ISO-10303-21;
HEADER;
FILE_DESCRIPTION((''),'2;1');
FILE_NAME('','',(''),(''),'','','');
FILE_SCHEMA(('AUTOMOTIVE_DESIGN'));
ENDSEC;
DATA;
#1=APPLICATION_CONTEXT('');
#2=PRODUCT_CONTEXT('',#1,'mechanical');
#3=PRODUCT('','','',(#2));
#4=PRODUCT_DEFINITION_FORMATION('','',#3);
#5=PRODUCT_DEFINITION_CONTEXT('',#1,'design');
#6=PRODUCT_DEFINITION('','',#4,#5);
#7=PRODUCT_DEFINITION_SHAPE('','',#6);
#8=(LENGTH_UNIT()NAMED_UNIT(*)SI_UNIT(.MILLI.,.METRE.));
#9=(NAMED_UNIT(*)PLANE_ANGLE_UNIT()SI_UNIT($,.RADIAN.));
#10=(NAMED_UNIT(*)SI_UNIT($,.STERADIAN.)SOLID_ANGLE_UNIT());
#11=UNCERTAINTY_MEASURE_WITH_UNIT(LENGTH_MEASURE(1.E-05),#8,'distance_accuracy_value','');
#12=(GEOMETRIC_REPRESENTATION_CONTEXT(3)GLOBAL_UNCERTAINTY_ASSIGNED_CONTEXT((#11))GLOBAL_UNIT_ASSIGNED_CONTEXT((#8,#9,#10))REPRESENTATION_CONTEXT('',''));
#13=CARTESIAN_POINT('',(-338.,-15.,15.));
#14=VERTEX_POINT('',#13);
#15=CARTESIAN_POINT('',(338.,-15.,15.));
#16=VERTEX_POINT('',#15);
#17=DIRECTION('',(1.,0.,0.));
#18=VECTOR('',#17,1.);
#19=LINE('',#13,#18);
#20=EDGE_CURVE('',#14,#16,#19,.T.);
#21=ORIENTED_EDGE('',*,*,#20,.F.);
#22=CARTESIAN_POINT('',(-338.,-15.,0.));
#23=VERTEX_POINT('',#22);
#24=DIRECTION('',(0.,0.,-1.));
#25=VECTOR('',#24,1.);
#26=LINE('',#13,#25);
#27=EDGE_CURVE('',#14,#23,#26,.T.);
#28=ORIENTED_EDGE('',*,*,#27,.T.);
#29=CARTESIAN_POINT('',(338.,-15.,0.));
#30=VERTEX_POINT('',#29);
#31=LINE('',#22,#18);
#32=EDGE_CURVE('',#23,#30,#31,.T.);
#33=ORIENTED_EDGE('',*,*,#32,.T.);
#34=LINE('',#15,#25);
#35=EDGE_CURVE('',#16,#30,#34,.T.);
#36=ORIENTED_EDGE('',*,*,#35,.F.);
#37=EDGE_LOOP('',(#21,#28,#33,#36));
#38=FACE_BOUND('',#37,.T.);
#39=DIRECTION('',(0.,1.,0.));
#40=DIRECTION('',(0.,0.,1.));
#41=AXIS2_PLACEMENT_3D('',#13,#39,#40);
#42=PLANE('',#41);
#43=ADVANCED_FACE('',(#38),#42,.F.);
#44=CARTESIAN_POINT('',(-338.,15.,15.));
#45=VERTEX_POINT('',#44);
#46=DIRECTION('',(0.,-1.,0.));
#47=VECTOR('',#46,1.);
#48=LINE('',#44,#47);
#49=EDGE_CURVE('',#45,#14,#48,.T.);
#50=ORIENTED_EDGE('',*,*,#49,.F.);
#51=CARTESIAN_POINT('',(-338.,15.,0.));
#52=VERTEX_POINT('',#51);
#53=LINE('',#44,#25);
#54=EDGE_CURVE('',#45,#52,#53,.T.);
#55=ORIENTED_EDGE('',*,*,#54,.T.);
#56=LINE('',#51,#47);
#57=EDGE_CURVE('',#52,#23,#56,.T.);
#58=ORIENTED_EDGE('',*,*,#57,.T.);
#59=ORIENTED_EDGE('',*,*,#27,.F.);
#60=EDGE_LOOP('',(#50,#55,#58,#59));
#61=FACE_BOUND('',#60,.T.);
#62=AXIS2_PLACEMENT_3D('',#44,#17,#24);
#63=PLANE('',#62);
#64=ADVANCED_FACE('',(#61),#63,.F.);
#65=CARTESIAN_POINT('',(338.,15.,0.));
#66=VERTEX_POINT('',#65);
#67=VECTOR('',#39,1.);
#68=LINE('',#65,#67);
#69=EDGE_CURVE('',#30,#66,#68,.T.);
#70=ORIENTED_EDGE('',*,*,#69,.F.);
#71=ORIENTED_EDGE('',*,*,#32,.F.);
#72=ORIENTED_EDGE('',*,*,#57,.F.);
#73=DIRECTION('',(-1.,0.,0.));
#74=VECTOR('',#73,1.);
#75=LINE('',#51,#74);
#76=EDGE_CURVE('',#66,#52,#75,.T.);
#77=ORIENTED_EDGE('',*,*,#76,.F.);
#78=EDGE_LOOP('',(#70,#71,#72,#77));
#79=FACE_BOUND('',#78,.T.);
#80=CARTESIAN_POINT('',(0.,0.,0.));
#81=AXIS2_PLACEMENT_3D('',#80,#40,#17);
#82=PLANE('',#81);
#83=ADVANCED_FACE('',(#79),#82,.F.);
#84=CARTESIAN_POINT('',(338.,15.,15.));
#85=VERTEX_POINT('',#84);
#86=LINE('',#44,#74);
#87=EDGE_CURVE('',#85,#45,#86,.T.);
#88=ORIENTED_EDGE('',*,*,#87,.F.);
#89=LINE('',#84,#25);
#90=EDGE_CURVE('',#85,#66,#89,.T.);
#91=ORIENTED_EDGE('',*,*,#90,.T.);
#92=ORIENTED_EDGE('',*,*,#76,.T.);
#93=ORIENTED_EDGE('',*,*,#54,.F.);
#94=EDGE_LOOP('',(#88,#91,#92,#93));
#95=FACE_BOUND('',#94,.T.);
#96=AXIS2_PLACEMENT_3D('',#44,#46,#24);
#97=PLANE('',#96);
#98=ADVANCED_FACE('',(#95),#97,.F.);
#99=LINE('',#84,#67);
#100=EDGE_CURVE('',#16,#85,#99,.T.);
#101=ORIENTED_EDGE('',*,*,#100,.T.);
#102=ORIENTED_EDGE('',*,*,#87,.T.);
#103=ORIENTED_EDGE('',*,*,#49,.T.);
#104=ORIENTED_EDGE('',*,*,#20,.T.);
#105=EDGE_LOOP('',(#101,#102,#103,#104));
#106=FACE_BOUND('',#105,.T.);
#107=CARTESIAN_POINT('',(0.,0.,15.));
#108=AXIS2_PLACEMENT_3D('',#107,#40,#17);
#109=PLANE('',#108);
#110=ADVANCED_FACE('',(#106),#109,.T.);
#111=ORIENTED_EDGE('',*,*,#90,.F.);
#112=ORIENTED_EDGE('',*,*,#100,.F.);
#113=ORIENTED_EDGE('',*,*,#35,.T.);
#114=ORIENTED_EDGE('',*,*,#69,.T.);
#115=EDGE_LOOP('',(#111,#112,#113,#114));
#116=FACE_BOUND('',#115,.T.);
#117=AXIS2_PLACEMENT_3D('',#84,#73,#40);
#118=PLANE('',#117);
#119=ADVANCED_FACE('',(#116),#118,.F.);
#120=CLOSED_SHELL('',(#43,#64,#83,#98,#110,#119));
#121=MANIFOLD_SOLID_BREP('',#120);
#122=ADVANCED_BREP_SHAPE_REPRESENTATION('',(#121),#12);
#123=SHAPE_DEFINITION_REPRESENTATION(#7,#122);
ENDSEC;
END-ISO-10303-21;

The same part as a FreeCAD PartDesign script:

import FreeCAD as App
import Part
import Sketcher
Q = App.Units.Quantity

doc = App.newDocument("Part")
body = doc.addObject("PartDesign::Body", "Body")

# Sketch on XY plane
sketch1 = doc.addObject("Sketcher::SketchObject", "Sketch")
body.addObject(sketch1)
sketch1.AttachmentSupport = (doc.XY_Plane, [""])
sketch1.MapMode = "FlatFace"
sketch1.addGeometry([
    Part.LineSegment(App.Vector(-338, 15, 0), App.Vector(-338, -15, 0)),
    Part.LineSegment(App.Vector(-338, -15, 0), App.Vector(338, -15, 0)),
    Part.LineSegment(App.Vector(338, -15, 0), App.Vector(338, 15, 0)),
    Part.LineSegment(App.Vector(338, 15, 0), App.Vector(-338, 15, 0)),
], False)
sketch1.addConstraint([
    Sketcher.Constraint("Coincident", 0, 2, 1, 1),
    Sketcher.Constraint("Coincident", 1, 2, 2, 1),
    Sketcher.Constraint("Coincident", 2, 2, 3, 1),
    Sketcher.Constraint("Coincident", 3, 2, 0, 1),
    Sketcher.Constraint("Vertical", 0),
    Sketcher.Constraint("Horizontal", 1),
    Sketcher.Constraint("Vertical", 2),
    Sketcher.Constraint("Horizontal", 3),
    Sketcher.Constraint("Symmetric", 0, 2, 2, 2, -1, 1),
    Sketcher.Constraint("DistanceX", 1, 1, 1, 2, Q("676 mm")),
    Sketcher.Constraint("DistanceY", 0, 2, 0, 1, Q("30 mm")),
])
pad1 = doc.addObject("PartDesign::Pad", "Pad")
body.addObject(pad1)
pad1.Profile = sketch1
pad1.Length = 15

doc.recompute()
